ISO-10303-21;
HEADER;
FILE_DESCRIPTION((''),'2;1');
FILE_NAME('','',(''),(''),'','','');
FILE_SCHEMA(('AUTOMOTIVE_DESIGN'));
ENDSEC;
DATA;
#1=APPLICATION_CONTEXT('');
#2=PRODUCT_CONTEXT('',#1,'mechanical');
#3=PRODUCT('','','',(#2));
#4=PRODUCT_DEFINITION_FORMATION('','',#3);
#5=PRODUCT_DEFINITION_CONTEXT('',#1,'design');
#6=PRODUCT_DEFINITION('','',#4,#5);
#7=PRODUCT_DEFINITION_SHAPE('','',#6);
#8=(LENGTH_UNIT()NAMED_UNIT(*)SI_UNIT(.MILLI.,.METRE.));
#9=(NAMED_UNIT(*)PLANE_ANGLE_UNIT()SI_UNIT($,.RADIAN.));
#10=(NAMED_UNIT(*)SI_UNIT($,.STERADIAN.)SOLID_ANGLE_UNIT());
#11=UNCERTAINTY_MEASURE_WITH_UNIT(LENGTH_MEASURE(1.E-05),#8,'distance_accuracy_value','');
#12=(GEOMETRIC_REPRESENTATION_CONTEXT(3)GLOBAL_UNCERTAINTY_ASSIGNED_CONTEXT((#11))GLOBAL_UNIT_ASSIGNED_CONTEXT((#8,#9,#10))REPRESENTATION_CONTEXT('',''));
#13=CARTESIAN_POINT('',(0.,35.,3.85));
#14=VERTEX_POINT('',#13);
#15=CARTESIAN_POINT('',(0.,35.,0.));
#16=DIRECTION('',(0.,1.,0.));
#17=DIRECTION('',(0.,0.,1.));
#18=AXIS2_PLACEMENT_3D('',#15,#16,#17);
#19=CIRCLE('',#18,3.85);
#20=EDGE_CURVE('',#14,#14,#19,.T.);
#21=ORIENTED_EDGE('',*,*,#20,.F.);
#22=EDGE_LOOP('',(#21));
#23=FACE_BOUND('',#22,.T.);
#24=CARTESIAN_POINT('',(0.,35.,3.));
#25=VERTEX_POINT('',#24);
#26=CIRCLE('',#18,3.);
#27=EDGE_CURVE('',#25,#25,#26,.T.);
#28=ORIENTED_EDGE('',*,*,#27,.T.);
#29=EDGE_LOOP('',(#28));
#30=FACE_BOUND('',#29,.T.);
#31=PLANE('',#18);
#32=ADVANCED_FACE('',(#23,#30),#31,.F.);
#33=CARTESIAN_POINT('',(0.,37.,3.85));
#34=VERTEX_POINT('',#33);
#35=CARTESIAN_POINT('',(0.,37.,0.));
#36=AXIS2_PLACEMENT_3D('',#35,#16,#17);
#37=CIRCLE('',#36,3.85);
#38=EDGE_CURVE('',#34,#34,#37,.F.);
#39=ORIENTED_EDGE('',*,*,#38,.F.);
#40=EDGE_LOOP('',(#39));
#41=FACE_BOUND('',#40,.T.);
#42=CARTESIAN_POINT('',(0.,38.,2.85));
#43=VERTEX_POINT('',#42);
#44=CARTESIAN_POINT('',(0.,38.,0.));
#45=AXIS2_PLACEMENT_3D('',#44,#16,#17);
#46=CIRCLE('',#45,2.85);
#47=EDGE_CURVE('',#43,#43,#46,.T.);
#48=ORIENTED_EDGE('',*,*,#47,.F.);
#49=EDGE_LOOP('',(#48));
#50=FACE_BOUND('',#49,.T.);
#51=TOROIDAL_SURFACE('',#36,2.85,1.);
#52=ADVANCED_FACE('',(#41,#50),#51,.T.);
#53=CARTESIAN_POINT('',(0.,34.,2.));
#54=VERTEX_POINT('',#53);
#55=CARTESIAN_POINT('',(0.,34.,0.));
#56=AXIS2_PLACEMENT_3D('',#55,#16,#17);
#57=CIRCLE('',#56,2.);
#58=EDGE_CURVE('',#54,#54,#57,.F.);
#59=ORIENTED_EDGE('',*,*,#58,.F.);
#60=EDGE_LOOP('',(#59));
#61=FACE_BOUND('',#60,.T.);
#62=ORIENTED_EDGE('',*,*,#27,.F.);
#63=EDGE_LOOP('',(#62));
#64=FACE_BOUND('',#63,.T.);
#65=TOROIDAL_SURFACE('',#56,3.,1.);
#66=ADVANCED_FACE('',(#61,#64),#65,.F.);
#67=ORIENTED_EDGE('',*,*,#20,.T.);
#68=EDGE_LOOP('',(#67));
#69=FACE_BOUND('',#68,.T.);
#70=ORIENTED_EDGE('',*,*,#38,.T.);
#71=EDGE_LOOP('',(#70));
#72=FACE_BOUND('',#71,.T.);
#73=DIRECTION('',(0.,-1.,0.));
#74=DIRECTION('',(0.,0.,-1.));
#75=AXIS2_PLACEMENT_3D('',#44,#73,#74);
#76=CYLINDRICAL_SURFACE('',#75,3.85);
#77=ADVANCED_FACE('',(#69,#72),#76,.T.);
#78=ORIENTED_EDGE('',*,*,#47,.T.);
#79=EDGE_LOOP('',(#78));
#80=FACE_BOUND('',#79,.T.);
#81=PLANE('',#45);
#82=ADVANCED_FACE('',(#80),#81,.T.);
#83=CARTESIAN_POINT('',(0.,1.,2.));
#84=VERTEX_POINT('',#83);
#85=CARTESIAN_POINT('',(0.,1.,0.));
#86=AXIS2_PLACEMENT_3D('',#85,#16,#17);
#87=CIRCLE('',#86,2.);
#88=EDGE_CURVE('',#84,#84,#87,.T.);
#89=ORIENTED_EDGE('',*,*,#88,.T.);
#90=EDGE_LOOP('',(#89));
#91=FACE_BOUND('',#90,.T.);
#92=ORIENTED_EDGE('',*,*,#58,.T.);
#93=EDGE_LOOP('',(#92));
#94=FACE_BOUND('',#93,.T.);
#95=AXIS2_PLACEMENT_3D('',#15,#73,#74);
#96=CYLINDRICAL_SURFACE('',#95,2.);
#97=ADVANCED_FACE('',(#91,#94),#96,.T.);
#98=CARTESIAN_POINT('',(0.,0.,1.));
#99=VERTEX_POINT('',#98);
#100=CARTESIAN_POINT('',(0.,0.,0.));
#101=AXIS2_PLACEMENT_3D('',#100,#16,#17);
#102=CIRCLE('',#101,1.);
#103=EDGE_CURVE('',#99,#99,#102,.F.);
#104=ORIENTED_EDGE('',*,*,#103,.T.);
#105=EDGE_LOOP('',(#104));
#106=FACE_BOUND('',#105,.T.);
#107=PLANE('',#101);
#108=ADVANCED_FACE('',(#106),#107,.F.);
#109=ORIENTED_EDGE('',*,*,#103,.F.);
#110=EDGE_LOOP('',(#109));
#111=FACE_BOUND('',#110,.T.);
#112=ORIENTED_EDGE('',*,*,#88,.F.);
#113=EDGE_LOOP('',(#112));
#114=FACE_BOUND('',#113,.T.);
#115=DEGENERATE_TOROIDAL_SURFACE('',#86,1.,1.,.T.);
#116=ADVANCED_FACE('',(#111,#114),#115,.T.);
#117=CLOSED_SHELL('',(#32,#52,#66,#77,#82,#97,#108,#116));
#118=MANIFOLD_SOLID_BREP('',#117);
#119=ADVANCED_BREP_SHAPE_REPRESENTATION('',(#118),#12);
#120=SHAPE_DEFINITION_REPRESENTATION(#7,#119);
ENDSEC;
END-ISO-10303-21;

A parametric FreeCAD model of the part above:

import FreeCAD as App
import Part
import Sketcher

V = App.Vector
Q = App.Units.Quantity


def edges_at(feature, points):
    """Names of the edges that pass closest to the given points."""
    edges = feature.Shape.Edges
    near = lambda p: min(range(len(edges)), key=lambda i: edges[i].distToShape(Part.Vertex(*p))[0])
    return sorted({f"Edge{near(p) + 1}" for p in points})

doc = App.newDocument("Part")
params = doc.addObject("Spreadsheet::Sheet", "Params")
for row, (alias, value) in enumerate([
    ("sketch1_diameter", "4 mm"),
    ("pad1_length", "35 mm"),
    ("sketch2_diameter", "7.7 mm"),
    ("pad2_length", "3 mm"),
    ("fillet_radius", "1 mm"),
    ("fillet2_radius", "1 mm"),
], start=1):
    params.set(f"A{row}", alias)
    params.set(f"B{row}", "=" + value)
    params.setAlias(f"B{row}", alias)

body = doc.addObject("PartDesign::Body", "Body")

sketch1 = body.newObject("Sketcher::SketchObject", "Sketch")
sketch1.AttachmentSupport = (doc.getObject("XZ_Plane"), [""])
sketch1.MapMode = "FlatFace"
sketch1.addGeometry(Part.Circle(V(0, 0, 0), V(0, 0, 1), 2), False)
sketch1.addConstraint([
    Sketcher.Constraint("Coincident", 0, 3, -1, 1),
    Sketcher.Constraint("Diameter", 0, Q("4 mm")),
])
sketch1.setExpression("Constraints[1]", "Params.sketch1_diameter")
pad1 = body.newObject("PartDesign::Pad", "Pad")
pad1.Profile = sketch1
pad1.setExpression("Length", "Params.pad1_length")
pad1.Reversed = True

sketch2 = body.newObject("Sketcher::SketchObject", "Sketch001")
sketch2.AttachmentSupport = (doc.getObject("XZ_Plane"), [""])
sketch2.MapMode = "FlatFace"
sketch2.AttachmentOffset = App.Placement(V(0, 0, -35), App.Rotation())
sketch2.addGeometry(Part.Circle(V(0, 0, 0), V(0, 0, 1), 3.9), False)
sketch2.addConstraint([
    Sketcher.Constraint("Coincident", 0, 3, -1, 1),
    Sketcher.Constraint("Diameter", 0, Q("7.7 mm")),
])
sketch2.setExpression("Constraints[1]", "Params.sketch2_diameter")
pad2 = body.newObject("PartDesign::Pad", "Pad001")
pad2.Profile = sketch2
pad2.setExpression("Length", "Params.pad2_length")
pad2.Reversed = True
doc.recompute()

fillet = body.newObject("PartDesign::Fillet", "Fillet")
fillet.Base = (pad2, edges_at(pad2, [(-3.85, 38, 0)]))
fillet.setExpression("Radius", "Params.fillet_radius")
doc.recompute()

fillet2 = body.newObject("PartDesign::Fillet", "Fillet001")
fillet2.Base = (fillet, edges_at(fillet, [(-2, 0, 0), (-2, 35, 0)]))
fillet2.setExpression("Radius", "Params.fillet2_radius")

doc.recompute()
